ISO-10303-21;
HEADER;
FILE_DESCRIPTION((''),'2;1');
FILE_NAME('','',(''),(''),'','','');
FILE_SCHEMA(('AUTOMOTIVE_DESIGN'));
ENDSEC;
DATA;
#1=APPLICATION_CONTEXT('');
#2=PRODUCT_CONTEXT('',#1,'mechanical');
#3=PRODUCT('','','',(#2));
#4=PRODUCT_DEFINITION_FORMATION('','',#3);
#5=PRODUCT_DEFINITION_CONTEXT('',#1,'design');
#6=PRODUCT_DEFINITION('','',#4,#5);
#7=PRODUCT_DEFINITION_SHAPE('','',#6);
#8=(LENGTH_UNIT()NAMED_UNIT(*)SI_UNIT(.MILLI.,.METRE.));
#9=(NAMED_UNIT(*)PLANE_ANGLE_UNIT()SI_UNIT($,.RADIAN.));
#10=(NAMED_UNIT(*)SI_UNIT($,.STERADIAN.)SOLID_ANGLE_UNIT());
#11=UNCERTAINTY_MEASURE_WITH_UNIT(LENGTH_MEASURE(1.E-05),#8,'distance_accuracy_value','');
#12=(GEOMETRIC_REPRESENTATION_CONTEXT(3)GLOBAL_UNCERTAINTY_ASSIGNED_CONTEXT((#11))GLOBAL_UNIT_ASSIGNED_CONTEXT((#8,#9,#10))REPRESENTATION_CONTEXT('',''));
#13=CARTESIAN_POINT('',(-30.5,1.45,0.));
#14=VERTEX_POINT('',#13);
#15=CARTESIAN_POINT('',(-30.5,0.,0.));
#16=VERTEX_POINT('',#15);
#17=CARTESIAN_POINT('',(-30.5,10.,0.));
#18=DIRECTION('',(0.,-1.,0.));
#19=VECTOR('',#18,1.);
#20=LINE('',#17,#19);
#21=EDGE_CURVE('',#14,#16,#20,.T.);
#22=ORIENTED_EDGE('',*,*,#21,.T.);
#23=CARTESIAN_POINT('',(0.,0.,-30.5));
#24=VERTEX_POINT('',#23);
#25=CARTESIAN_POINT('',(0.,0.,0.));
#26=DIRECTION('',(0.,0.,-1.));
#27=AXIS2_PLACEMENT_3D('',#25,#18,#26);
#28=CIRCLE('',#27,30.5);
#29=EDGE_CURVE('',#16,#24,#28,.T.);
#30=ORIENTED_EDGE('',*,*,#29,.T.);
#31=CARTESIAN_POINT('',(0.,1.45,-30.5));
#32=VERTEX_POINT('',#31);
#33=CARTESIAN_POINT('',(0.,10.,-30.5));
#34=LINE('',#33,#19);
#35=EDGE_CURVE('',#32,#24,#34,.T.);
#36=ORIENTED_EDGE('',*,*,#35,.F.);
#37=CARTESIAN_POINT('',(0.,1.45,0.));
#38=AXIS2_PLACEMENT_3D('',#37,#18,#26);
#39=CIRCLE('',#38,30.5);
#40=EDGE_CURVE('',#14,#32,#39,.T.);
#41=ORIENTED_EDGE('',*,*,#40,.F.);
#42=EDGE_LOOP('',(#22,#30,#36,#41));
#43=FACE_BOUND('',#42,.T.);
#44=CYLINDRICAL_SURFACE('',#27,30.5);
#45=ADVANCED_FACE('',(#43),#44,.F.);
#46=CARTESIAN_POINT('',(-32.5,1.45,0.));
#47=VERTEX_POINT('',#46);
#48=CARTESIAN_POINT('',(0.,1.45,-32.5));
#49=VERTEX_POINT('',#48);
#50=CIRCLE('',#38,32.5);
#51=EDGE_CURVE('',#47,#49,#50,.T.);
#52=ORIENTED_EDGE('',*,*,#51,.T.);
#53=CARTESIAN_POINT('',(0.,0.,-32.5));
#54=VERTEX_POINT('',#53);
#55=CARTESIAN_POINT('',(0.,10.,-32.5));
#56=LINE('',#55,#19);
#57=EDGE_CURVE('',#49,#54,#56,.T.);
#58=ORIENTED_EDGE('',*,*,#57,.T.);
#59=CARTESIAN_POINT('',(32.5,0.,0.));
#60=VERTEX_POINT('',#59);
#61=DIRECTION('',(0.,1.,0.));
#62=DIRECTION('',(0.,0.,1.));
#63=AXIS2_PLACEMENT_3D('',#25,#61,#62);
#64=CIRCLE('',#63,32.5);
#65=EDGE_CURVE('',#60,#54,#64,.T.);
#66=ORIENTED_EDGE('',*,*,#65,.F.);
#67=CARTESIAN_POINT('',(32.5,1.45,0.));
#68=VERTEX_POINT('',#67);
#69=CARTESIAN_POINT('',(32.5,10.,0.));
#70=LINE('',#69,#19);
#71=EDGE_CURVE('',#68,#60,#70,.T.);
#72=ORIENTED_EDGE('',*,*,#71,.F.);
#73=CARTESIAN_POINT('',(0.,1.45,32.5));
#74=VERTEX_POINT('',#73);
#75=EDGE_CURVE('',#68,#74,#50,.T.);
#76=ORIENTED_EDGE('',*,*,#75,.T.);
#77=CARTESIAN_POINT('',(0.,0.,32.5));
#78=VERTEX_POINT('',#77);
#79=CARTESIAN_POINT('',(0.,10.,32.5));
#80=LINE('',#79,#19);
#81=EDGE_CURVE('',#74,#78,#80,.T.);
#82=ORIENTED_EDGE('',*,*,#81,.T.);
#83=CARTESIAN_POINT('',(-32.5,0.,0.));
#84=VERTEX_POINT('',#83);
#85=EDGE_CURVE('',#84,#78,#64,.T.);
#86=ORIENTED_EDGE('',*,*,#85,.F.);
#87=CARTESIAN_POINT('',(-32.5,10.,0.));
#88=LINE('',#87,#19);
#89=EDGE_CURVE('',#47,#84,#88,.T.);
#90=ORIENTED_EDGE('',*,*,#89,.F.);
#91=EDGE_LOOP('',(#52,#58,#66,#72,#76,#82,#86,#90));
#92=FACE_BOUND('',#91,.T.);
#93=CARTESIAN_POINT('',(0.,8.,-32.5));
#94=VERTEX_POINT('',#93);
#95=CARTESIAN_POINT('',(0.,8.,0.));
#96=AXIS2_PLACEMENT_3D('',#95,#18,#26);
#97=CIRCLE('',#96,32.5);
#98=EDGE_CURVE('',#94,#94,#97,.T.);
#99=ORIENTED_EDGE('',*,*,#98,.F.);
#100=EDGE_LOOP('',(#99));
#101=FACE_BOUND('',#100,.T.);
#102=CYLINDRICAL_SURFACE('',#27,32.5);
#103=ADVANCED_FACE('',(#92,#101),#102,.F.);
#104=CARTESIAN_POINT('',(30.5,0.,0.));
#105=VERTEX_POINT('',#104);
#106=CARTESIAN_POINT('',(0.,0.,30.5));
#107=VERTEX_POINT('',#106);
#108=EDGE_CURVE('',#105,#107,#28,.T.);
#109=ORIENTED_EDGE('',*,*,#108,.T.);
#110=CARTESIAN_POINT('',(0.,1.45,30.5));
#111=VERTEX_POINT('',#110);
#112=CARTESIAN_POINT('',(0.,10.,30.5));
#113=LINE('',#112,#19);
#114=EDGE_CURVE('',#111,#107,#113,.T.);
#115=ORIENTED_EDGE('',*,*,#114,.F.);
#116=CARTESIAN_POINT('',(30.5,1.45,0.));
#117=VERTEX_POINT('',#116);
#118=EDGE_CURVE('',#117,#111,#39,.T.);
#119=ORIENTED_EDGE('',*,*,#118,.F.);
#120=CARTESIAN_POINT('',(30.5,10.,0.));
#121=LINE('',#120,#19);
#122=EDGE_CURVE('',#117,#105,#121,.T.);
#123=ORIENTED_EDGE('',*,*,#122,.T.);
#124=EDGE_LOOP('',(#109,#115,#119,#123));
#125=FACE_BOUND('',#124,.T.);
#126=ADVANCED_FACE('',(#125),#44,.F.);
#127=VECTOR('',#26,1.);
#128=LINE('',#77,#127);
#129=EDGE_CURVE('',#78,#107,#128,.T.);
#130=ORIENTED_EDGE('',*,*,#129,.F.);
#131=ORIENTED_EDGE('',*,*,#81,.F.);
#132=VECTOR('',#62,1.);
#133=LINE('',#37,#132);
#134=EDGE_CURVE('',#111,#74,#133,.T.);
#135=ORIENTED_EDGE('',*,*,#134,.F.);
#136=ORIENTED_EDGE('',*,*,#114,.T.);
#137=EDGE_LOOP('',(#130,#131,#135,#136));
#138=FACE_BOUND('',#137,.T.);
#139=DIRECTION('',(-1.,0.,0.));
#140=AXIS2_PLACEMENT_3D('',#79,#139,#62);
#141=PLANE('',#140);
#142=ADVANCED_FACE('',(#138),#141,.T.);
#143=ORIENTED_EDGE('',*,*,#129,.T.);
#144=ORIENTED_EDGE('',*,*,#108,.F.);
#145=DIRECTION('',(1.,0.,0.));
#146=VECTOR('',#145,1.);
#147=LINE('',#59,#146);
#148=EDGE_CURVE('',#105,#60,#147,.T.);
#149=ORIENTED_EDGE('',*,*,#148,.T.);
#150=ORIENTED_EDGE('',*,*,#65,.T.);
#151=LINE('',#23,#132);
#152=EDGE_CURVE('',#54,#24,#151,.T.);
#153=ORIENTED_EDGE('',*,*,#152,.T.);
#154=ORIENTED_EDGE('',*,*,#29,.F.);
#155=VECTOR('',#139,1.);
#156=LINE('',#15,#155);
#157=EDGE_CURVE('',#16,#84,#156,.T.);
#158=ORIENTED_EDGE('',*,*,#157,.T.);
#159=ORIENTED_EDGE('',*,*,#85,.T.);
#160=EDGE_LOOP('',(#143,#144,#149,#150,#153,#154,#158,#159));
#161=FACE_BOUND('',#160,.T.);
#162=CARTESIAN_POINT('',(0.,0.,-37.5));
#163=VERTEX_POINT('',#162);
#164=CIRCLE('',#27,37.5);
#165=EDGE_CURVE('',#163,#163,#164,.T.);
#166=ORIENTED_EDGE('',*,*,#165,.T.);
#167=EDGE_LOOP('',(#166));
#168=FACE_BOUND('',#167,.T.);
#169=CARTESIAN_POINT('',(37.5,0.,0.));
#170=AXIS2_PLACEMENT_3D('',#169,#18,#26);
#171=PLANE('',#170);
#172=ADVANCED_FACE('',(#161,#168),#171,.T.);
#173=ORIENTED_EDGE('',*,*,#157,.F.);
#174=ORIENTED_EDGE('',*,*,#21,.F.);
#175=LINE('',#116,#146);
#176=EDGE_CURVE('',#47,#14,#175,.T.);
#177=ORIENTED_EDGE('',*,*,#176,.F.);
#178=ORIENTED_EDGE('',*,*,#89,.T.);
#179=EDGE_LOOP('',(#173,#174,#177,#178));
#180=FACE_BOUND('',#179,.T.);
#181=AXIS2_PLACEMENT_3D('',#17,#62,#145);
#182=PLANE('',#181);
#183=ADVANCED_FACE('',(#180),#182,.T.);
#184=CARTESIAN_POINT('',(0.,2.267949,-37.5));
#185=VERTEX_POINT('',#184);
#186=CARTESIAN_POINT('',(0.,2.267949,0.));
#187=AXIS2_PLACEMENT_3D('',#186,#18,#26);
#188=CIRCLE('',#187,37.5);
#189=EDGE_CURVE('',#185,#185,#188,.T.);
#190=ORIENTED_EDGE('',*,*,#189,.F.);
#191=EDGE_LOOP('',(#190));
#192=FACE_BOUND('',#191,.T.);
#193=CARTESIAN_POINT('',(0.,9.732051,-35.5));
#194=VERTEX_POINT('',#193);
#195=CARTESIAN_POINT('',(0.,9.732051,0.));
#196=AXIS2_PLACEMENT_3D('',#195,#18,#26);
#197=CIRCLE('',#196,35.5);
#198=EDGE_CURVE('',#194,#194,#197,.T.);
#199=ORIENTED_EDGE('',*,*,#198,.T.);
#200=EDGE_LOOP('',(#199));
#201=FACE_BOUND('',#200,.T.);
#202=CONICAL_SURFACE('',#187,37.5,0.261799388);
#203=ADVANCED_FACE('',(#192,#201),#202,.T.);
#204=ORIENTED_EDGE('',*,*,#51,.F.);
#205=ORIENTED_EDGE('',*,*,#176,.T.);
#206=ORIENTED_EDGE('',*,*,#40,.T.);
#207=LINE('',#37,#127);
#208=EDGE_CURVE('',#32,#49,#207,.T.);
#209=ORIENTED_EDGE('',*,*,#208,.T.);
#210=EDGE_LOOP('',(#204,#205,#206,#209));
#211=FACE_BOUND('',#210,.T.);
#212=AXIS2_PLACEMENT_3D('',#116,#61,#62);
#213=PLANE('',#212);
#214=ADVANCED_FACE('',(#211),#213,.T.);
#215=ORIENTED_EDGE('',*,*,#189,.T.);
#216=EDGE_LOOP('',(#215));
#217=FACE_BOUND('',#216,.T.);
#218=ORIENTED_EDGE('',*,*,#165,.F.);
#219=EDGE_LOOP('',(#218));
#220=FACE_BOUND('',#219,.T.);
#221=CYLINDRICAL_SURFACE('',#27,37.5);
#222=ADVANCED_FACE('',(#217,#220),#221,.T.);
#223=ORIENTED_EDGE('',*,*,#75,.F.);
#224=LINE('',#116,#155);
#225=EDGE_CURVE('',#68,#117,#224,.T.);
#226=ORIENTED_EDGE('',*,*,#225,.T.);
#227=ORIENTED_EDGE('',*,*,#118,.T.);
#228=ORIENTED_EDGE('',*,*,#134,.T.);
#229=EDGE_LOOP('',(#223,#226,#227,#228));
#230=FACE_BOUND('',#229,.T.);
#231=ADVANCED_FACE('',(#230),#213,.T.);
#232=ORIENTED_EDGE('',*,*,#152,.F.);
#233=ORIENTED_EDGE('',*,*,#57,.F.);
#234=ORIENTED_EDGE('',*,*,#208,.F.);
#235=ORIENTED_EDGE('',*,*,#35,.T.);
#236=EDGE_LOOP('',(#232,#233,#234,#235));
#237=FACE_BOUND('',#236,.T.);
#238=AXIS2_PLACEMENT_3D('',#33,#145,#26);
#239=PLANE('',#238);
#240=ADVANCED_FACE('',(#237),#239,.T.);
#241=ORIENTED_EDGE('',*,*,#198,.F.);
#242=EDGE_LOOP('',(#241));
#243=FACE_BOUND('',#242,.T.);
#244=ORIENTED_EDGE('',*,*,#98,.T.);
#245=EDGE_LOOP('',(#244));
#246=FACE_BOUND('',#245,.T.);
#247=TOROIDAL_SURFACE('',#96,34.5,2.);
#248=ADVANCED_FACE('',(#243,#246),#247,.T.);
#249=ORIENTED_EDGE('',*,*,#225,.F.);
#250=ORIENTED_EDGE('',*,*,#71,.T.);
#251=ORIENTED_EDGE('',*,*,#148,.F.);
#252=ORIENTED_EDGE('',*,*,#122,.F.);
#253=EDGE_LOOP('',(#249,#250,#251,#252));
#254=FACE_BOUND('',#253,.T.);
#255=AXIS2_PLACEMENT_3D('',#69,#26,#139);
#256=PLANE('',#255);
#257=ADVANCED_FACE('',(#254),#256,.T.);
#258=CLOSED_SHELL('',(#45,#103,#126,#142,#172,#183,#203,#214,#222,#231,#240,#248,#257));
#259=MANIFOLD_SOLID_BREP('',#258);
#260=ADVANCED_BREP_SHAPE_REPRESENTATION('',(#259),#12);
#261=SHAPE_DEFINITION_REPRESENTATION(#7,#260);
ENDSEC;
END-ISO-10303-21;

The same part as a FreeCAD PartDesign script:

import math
import FreeCAD as App
import Part
import Sketcher

V = App.Vector
Q = App.Units.Quantity

doc = App.newDocument("Part")
params = doc.addObject("Spreadsheet::Sheet", "Params")
for row, (alias, value) in enumerate([
    ("sketch1_radius", "2 mm"),
    ("sketch1_width", "7 mm"),
    ("sketch1_width2", "2 mm"),
    ("sketch1_height", "6.55 mm"),
    ("revolution_angle", "360 deg"),
    ("sketch2_radius", "30.5 mm"),
    ("sketch2_radius2", "32.5 mm"),
], start=1):
    params.set(f"A{row}", alias)
    params.set(f"B{row}", "=" + value)
    params.setAlias(f"B{row}", alias)

body = doc.addObject("PartDesign::Body", "Body")

# Sketch on XY plane
sketch1 = doc.addObject("Sketcher::SketchObject", "Sketch")
body.addObject(sketch1)
sketch1.AttachmentSupport = (doc.XY_Plane, [""])
sketch1.MapMode = "FlatFace"
sketch1.addGeometry([
    Part.LineSegment(V(30.5, 0, 0), V(37.5, 0, 0)),  # 0
    Part.LineSegment(V(37.5, 0, 0), V(37.5, 2.267949, 0)),  # 1
    Part.LineSegment(V(37.5, 2.267949, 0), V(35.5, 9.732051, 0)),  # 2
    Part.ArcOfCircle(Part.Circle(V(34.5, 8, 0), V(0, 0, 1), 2), math.radians(60), math.radians(180)),  # 3
    Part.LineSegment(V(32.5, 8, 0), V(32.5, 1.45, 0)),  # 4
    Part.LineSegment(V(32.5, 1.45, 0), V(30.5, 1.45, 0)),  # 5
    Part.LineSegment(V(30.5, 1.45, 0), V(30.5, 0, 0)),  # 6
], False)
sketch1.addConstraint([
    Sketcher.Constraint("Coincident", 0, 2, 1, 1),
    Sketcher.Constraint("Coincident", 1, 2, 2, 1),
    Sketcher.Constraint("Coincident", 2, 2, 3, 1),
    Sketcher.Constraint("Tangent", 3, 2, 4, 1),
    Sketcher.Constraint("Coincident", 4, 2, 5, 1),
    Sketcher.Constraint("Coincident", 5, 2, 6, 1),
    Sketcher.Constraint("Coincident", 6, 2, 0, 1),
    Sketcher.Constraint("Horizontal", 0),
    Sketcher.Constraint("Vertical", 1),
    Sketcher.Constraint("Vertical", 4),
    Sketcher.Constraint("Horizontal", 5),
    Sketcher.Constraint("Vertical", 6),
    Sketcher.Constraint("PointOnObject", 0, 2, -1),
    Sketcher.Constraint("Radius", 3, Q("2 mm")),
    Sketcher.Constraint("DistanceX", 0, 1, 0, 2, Q("7 mm")),
    Sketcher.Constraint("DistanceX", 5, 2, 5, 1, Q("2 mm")),
    Sketcher.Constraint("Angle", 2, Q("105 deg")),
    Sketcher.Constraint("DistanceY", -1, 1, 3, 3, Q("8 mm")),
    Sketcher.Constraint("DistanceX", 3, 3, 2, 2, Q("1 mm")),
    Sketcher.Constraint("DistanceY", 4, 2, 4, 1, Q("6.55 mm")),
    Sketcher.Constraint("DistanceX", -1, 1, 3, 3, Q("34.5 mm")),
])
sketch1.setExpression("Constraints[13]", "Params.sketch1_radius")
sketch1.setExpression("Constraints[14]", "Params.sketch1_width")
sketch1.setExpression("Constraints[15]", "Params.sketch1_width2")
sketch1.setExpression("Constraints[19]", "Params.sketch1_height")
revolution = doc.addObject("PartDesign::Revolution", "Revolution")
body.addObject(revolution)
revolution.Profile = sketch1
revolution.ReferenceAxis = (sketch1, ["V_Axis"])
revolution.setExpression("Angle", "Params.revolution_angle")

# Sketch on XZ plane
sketch2 = doc.addObject("Sketcher::SketchObject", "Sketch001")
body.addObject(sketch2)
sketch2.AttachmentSupport = (doc.XZ_Plane, [""])
sketch2.MapMode = "FlatFace"
sketch2.addGeometry([
    Part.LineSegment(V(0, -32.5, 0), V(0, -30.5, 0)),  # 0
    Part.ArcOfCircle(Part.Circle(V(0, 0, 0), V(0, 0, 1), 30.5), math.radians(-90), math.radians(0)),  # 1
    Part.LineSegment(V(30.5, 0, 0), V(32.5, 0, 0)),  # 2
    Part.ArcOfCircle(Part.Circle(V(0, 0, 0), V(0, 0, 1), 32.5), math.radians(-90), math.radians(0)),  # 3
    Part.LineSegment(V(0, 32.5, 0), V(0, 30.5, 0)),  # 4
    Part.ArcOfCircle(Part.Circle(V(0, 0, 0), V(0, 0, 1), 30.5), math.radians(90), math.radians(180)),  # 5
    Part.LineSegment(V(-30.5, 0, 0), V(-32.5, 0, 0)),  # 6
    Part.ArcOfCircle(Part.Circle(V(0, 0, 0), V(0, 0, 1), 32.5), math.radians(90), math.radians(180)),  # 7
], False)
sketch2.addConstraint([
    Sketcher.Constraint("Coincident", 0, 2, 1, 1),
    Sketcher.Constraint("Coincident", 1, 2, 2, 1),
    Sketcher.Constraint("Coincident", 2, 2, 3, 2),
    Sketcher.Constraint("Coincident", 3, 1, 0, 1),
    Sketcher.Constraint("Coincident", 4, 2, 5, 1),
    Sketcher.Constraint("Coincident", 5, 2, 6, 1),
    Sketcher.Constraint("Coincident", 6, 2, 7, 2),
    Sketcher.Constraint("Coincident", 7, 1, 4, 1),
    Sketcher.Constraint("Vertical", 0),
    Sketcher.Constraint("Horizontal", 2),
    Sketcher.Constraint("Vertical", 4),
    Sketcher.Constraint("Horizontal", 6),
    Sketcher.Constraint("Coincident", 1, 3, -1, 1),
    Sketcher.Constraint("Coincident", 3, 3, -1, 1),
    Sketcher.Constraint("Coincident", 5, 3, -1, 1),
    Sketcher.Constraint("Coincident", 7, 3, -1, 1),
    Sketcher.Constraint("Equal", 1, 5),
    Sketcher.Constraint("Equal", 3, 7),
    Sketcher.Constraint("PointOnObject", 0, 2, -2),
    Sketcher.Constraint("PointOnObject", 1, 2, -1),
    Sketcher.Constraint("PointOnObject", 4, 2, -2),
    Sketcher.Constraint("PointOnObject", 5, 2, -1),
    Sketcher.Constraint("Radius", 1, Q("30.5 mm")),
    Sketcher.Constraint("Radius", 3, Q("32.5 mm")),
])
sketch2.setExpression("Constraints[22]", "Params.sketch2_radius")
sketch2.setExpression("Constraints[23]", "Params.sketch2_radius2")
pocket1 = doc.addObject("PartDesign::Pocket", "Pocket")
body.addObject(pocket1)
pocket1.Profile = sketch2
pocket1.Type = "ThroughAll"

doc.recompute()
